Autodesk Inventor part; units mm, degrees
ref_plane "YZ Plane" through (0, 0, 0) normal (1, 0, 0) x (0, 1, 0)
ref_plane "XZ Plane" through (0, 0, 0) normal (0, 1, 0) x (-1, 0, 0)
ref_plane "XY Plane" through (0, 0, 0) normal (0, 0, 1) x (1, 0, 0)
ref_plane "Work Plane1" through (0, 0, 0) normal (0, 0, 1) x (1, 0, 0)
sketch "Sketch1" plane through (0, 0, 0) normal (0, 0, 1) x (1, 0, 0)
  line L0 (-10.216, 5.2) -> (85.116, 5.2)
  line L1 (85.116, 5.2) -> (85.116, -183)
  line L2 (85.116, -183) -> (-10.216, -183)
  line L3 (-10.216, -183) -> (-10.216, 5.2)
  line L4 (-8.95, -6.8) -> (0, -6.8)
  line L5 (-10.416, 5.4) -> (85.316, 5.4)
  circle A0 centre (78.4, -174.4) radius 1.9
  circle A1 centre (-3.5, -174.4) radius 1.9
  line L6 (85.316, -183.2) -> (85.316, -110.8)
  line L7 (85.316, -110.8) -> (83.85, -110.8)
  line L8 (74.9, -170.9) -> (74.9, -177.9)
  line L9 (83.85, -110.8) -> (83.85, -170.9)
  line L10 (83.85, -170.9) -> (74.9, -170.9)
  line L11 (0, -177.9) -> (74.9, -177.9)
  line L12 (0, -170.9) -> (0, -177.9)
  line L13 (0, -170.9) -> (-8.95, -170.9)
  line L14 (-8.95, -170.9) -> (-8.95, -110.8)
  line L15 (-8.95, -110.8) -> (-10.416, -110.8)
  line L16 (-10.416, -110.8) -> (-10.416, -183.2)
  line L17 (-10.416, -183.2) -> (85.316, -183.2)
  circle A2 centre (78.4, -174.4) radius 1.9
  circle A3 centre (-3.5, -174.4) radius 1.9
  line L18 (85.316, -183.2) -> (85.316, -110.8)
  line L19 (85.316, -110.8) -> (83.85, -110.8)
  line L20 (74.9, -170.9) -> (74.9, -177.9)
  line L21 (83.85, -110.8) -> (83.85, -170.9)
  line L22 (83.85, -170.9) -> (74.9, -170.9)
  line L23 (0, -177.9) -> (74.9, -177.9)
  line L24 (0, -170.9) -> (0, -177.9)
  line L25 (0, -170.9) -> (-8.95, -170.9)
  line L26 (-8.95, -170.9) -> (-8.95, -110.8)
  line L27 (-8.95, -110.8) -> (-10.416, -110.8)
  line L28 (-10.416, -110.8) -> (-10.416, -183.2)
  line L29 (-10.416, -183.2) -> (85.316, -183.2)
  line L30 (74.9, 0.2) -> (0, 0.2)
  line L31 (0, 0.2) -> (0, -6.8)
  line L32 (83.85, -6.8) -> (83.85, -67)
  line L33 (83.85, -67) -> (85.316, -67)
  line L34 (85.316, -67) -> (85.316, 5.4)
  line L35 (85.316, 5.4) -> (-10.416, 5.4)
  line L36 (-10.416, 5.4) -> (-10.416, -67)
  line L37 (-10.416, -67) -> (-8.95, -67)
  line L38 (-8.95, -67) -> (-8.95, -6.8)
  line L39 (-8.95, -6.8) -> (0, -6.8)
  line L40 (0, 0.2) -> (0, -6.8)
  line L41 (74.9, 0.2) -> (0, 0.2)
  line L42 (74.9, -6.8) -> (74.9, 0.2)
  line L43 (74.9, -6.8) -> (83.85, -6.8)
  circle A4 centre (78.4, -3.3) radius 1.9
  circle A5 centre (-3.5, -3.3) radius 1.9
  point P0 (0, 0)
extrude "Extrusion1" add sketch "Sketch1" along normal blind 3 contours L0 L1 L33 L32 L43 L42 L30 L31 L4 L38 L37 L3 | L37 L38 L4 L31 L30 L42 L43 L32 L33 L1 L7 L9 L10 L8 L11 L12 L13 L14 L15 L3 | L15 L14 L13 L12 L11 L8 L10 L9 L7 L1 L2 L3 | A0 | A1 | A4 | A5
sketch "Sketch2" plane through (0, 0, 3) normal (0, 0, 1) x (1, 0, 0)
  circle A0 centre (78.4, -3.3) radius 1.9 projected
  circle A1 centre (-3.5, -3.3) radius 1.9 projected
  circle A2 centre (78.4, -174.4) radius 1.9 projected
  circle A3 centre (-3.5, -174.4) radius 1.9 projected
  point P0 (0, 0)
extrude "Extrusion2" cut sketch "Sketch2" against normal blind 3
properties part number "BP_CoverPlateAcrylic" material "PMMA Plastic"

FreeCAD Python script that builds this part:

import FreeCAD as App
import Part
import Sketcher

V = App.Vector
Q = App.Units.Quantity


def add_polygon(sketch, points):
    """Adds a closed chain of lines whose ends are joined by coincident constraints."""
    first, n = sketch.GeometryCount, len(points)
    for a, b in zip(points, points[1:] + points[:1]):
        sketch.addGeometry(Part.LineSegment(App.Vector(*a, 0), App.Vector(*b, 0)), False)
    for i in range(n):
        sketch.addConstraint(Sketcher.Constraint("Coincident", first + i, 2, first + (i + 1) % n, 1))

doc = App.newDocument("Part")
params = doc.addObject("Spreadsheet::Sheet", "Params")
for row, (alias, value) in enumerate([
    ("sketch1_height", "188.2 mm"),
    ("pad1_length", "3 mm"),
    ("sketch2_diameter", "3.8 mm"),
    ("pocket1_length", "3 mm"),
], start=1):
    params.set(f"A{row}", alias)
    params.set(f"B{row}", "=" + value)
    params.setAlias(f"B{row}", alias)

body = doc.addObject("PartDesign::Body", "Body")

# Sketch on XY plane
sketch1 = body.newObject("Sketcher::SketchObject", "Sketch")
sketch1.AttachmentSupport = (doc.getObject("XY_Plane"), [""])
sketch1.MapMode = "FlatFace"
add_polygon(sketch1, [(85, 5), (-10, 5), (-10, -183), (85, -183)])  # lines 0-3
sketch1.addConstraint([
    Sketcher.Constraint("Horizontal", 0),
    Sketcher.Constraint("Vertical", 1),
    Sketcher.Constraint("Horizontal", 2),
    Sketcher.Constraint("Vertical", 3),
    Sketcher.Constraint("DistanceY", 1, 2, 1, 1, Q("188.2 mm")),
    Sketcher.Constraint("DistanceY", 1, 2, -1, 1, Q("183 mm")),
    Sketcher.Constraint("DistanceX", 0, 2, 0, 1, Q("95.332 mm")),
    Sketcher.Constraint("DistanceX", 0, 2, -1, 1, Q("10.216 mm")),
])
sketch1.setExpression("Constraints[8]", "Params.sketch1_height")
pad1 = body.newObject("PartDesign::Pad", "Pad")
pad1.Profile = sketch1
pad1.setExpression("Length", "Params.pad1_length")

# Sketch on XY plane
sketch2 = body.newObject("Sketcher::SketchObject", "Sketch001")
sketch2.AttachmentSupport = (doc.getObject("XY_Plane"), [""])
sketch2.MapMode = "FlatFace"
sketch2.AttachmentOffset = App.Placement(V(0, 0, 3), App.Rotation())
sketch2.addGeometry([
    Part.Circle(V(78.4, -3.3, 0), V(0, 0, 1), 1.9),
    Part.Circle(V(-3.5, -3.3, 0), V(0, 0, 1), 1.9),
    Part.Circle(V(78.4, -174.4, 0), V(0, 0, 1), 1.9),
    Part.Circle(V(-3.5, -174.4, 0), V(0, 0, 1), 1.9),
], False)
sketch2.addConstraint([
    Sketcher.Constraint("Equal", 0, 1),
    Sketcher.Constraint("Equal", 1, 2),
    Sketcher.Constraint("Equal", 2, 3),
    Sketcher.Constraint("Horizontal", 0, 3, 1, 3),
    Sketcher.Constraint("Horizontal", 2, 3, 3, 3),
    Sketcher.Constraint("Vertical", 0, 3, 2, 3),
    Sketcher.Constraint("Vertical", 1, 3, 3, 3),
    Sketcher.Constraint("Diameter", 0, Q("3.8 mm")),
    Sketcher.Constraint("DistanceX", -1, 1, 0, 3, Q("78.4 mm")),
    Sketcher.Constraint("DistanceY", 0, 3, -1, 1, Q("3.3 mm")),
    Sketcher.Constraint("DistanceX", 1, 3, -1, 1, Q("3.5 mm")),
    Sketcher.Constraint("DistanceY", 2, 3, -1, 1, Q("174.4 mm")),
])
sketch2.setExpression("Constraints[7]", "Params.sketch2_diameter")
pocket1 = body.newObject("PartDesign::Pocket", "Pocket")
pocket1.Profile = sketch2
pocket1.setExpression("Length", "Params.pocket1_length")

doc.recompute()
